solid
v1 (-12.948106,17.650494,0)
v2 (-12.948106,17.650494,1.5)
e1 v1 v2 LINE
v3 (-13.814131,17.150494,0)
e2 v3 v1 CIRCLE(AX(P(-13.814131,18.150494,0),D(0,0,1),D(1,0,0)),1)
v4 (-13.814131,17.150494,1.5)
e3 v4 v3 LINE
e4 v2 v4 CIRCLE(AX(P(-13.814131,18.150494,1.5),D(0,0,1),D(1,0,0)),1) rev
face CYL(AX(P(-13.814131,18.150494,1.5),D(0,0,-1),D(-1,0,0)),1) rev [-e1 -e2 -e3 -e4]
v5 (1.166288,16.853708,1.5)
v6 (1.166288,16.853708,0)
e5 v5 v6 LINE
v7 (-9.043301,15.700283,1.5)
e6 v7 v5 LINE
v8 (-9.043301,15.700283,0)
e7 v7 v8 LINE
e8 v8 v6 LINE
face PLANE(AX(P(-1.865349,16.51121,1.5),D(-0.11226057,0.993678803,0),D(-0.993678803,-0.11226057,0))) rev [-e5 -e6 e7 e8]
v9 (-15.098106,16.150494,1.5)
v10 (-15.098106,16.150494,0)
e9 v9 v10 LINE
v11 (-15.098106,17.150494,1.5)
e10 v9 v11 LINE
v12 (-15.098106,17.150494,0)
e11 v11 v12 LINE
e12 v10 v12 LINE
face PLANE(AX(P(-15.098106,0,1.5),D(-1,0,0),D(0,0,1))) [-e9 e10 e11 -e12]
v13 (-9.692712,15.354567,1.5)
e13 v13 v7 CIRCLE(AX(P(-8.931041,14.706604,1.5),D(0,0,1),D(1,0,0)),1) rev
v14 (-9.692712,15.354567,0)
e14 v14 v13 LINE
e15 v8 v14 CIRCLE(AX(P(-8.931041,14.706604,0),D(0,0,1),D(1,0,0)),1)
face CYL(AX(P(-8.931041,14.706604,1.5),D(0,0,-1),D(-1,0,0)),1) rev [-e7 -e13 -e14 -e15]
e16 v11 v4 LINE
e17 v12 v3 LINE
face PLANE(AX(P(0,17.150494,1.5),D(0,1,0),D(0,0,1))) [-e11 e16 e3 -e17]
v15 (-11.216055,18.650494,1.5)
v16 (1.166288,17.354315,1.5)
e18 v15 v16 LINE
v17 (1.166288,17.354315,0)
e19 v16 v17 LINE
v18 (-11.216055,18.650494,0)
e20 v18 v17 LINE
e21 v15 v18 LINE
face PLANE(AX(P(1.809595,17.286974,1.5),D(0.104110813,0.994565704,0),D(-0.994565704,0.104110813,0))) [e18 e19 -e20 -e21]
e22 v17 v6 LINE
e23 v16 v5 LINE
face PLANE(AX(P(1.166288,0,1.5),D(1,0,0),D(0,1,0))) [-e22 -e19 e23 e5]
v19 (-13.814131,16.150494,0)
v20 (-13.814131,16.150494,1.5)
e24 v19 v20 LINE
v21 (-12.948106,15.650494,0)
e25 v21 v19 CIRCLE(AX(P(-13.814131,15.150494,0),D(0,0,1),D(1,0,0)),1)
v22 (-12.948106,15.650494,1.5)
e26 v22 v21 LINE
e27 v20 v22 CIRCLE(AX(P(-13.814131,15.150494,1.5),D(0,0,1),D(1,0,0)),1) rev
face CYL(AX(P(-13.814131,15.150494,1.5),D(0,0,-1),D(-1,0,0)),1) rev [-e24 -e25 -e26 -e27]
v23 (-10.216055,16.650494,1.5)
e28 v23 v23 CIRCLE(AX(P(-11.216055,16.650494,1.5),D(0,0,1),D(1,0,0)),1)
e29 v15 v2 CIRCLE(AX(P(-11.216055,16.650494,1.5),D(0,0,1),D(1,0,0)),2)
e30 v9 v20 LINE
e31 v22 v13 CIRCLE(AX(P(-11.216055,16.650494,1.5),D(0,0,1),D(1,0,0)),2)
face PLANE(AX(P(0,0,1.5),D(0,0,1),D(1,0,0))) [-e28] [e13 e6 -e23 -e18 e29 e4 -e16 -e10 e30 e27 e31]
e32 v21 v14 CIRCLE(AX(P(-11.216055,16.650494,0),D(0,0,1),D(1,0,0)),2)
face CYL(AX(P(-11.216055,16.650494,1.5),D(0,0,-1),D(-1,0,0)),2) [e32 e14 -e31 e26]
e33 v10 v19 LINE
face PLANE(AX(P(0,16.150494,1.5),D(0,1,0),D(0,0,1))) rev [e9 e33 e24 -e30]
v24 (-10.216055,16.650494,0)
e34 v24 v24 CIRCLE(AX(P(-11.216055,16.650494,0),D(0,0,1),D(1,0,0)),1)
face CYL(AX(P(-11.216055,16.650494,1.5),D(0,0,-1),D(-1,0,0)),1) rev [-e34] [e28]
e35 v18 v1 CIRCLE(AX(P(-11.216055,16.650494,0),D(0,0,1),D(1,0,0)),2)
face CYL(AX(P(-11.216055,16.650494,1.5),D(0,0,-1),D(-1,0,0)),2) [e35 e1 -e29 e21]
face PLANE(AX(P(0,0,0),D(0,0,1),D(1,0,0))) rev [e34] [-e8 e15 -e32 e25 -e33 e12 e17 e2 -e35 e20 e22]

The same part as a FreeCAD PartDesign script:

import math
import FreeCAD as App
import Part
import Sketcher
Q = App.Units.Quantity


def edges_at(feature, points):
    """Names of the edges that pass closest to the given points."""
    edges = feature.Shape.Edges
    near = lambda p: min(range(len(edges)), key=lambda i: edges[i].distToShape(Part.Vertex(*p))[0])
    return sorted({f"Edge{near(p) + 1}" for p in points})

doc = App.newDocument("Part")
params = doc.addObject("Spreadsheet::Sheet", "Params")
for row, (alias, value) in enumerate([
    ("sketch1_diameter", "2 mm"),
    ("sketch1_radius", "2 mm"),
    ("sketch1_height", "1 mm"),
    ("sketch1_length", "12.45 mm"),
    ("pad1_length", "1.5 mm"),
    ("fillet_radius", "1 mm"),
    ("fillet2_radius", "1 mm"),
    ("fillet3_radius", "1 mm"),
], start=1):
    params.set(f"A{row}", alias)
    params.set(f"B{row}", "=" + value)
    params.setAlias(f"B{row}", alias)

body = doc.addObject("PartDesign::Body", "Body")

# Sketch on XY plane
sketch1 = doc.addObject("Sketcher::SketchObject", "Sketch")
body.addObject(sketch1)
sketch1.AttachmentSupport = (doc.XY_Plane, [""])
sketch1.MapMode = "FlatFace"
sketch1.addGeometry([
    Part.LineSegment(App.Vector(1.166288, 16.853708, 0), App.Vector(1.166288, 17.354315, 0)),  # 0
    Part.LineSegment(App.Vector(1.166288, 17.354315, 0), App.Vector(-11.216055, 18.650494, 0)),  # 1
    Part.ArcOfCircle(Part.Circle(App.Vector(-11.216055, 16.650494, 0), App.Vector(0, 0, 1), 2), math.radians(90), math.radians(165.522488)),  # 2
    Part.LineSegment(App.Vector(-13.152547, 17.150494, 0), App.Vector(-15.098106, 17.150494, 0)),  # 3
    Part.LineSegment(App.Vector(-15.098106, 17.150494, 0), App.Vector(-15.098106, 16.150494, 0)),  # 4
    Part.LineSegment(App.Vector(-15.098106, 16.150494, 0), App.Vector(-13.152547, 16.150494, 0)),  # 5
    Part.ArcOfCircle(Part.Circle(App.Vector(-11.216055, 16.650494, 0), App.Vector(0, 0, 1), 2), math.radians(-165.522488), math.radians(-30)),  # 6
    Part.LineSegment(App.Vector(-9.484004, 15.650494, 0), App.Vector(1.166288, 16.853708, 0)),  # 7
    Part.Circle(App.Vector(-11.216055, 16.650494, 0), App.Vector(0, 0, 1), 1),  # 8
], False)
sketch1.addConstraint([
    Sketcher.Constraint("Coincident", 0, 2, 1, 1),
    Sketcher.Constraint("Coincident", 1, 2, 2, 1),
    Sketcher.Constraint("Coincident", 2, 2, 3, 1),
    Sketcher.Constraint("Coincident", 3, 2, 4, 1),
    Sketcher.Constraint("Coincident", 4, 2, 5, 1),
    Sketcher.Constraint("Coincident", 5, 2, 6, 1),
    Sketcher.Constraint("Coincident", 6, 2, 7, 1),
    Sketcher.Constraint("Coincident", 7, 2, 0, 1),
    Sketcher.Constraint("Vertical", 0),
    Sketcher.Constraint("Horizontal", 3),
    Sketcher.Constraint("Vertical", 4),
    Sketcher.Constraint("Horizontal", 5),
    Sketcher.Constraint("Coincident", 6, 3, 2, 3),
    Sketcher.Constraint("Coincident", 8, 3, 2, 3),
    Sketcher.Constraint("Equal", 2, 6),
    Sketcher.Constraint("Vertical", 8, 3, 1, 2),
    Sketcher.Constraint("Vertical", 2, 2, 5, 2),
    Sketcher.Constraint("Diameter", 8, Q("2 mm")),
    Sketcher.Constraint("Radius", 2, Q("2 mm")),
    Sketcher.Constraint("DistanceY", 4, 2, 4, 1, Q("1 mm")),
    Sketcher.Constraint("DistanceY", 6, 2, 2, 3, Q("1 mm")),
    Sketcher.Constraint("Distance", 1, Q("12.45 mm")),
    Sketcher.Constraint("DistanceX", 3, 2, 3, 1, Q("1.945559 mm")),
    Sketcher.Constraint("DistanceY", 0, 1, 0, 2, Q("0.500607 mm")),
    Sketcher.Constraint("DistanceY", -1, 1, 7, 2, Q("16.853708 mm")),
    Sketcher.Constraint("DistanceY", 2, 3, 0, 2, Q("0.70382 mm")),
    Sketcher.Constraint("DistanceX", 2, 3, -1, 1, Q("11.216055 mm")),
])
sketch1.setExpression("Constraints[17]", "Params.sketch1_diameter")
sketch1.setExpression("Constraints[18]", "Params.sketch1_radius")
sketch1.setExpression("Constraints[19]", "Params.sketch1_height")
sketch1.setExpression("Constraints[21]", "Params.sketch1_length")
pad1 = doc.addObject("PartDesign::Pad", "Pad")
body.addObject(pad1)
pad1.Profile = sketch1
pad1.setExpression("Length", "Params.pad1_length")
doc.recompute()

fillet = doc.addObject("PartDesign::Fillet", "Fillet")
body.addObject(fillet)
fillet.Base = (pad1, edges_at(pad1, [(-13.153, 16.15, 0.75)]))
fillet.setExpression("Radius", "Params.fillet_radius")
doc.recompute()

fillet2 = doc.addObject("PartDesign::Fillet", "Fillet001")
body.addObject(fillet2)
fillet2.Base = (fillet, edges_at(fillet, [(-13.153, 17.15, 0.75)]))
fillet2.setExpression("Radius", "Params.fillet2_radius")
doc.recompute()

fillet3 = doc.addObject("PartDesign::Fillet", "Fillet002")
body.addObject(fillet3)
fillet3.Base = (fillet2, edges_at(fillet2, [(-9.484, 15.65, 0.75)]))
fillet3.setExpression("Radius", "Params.fillet3_radius")

doc.recompute()
